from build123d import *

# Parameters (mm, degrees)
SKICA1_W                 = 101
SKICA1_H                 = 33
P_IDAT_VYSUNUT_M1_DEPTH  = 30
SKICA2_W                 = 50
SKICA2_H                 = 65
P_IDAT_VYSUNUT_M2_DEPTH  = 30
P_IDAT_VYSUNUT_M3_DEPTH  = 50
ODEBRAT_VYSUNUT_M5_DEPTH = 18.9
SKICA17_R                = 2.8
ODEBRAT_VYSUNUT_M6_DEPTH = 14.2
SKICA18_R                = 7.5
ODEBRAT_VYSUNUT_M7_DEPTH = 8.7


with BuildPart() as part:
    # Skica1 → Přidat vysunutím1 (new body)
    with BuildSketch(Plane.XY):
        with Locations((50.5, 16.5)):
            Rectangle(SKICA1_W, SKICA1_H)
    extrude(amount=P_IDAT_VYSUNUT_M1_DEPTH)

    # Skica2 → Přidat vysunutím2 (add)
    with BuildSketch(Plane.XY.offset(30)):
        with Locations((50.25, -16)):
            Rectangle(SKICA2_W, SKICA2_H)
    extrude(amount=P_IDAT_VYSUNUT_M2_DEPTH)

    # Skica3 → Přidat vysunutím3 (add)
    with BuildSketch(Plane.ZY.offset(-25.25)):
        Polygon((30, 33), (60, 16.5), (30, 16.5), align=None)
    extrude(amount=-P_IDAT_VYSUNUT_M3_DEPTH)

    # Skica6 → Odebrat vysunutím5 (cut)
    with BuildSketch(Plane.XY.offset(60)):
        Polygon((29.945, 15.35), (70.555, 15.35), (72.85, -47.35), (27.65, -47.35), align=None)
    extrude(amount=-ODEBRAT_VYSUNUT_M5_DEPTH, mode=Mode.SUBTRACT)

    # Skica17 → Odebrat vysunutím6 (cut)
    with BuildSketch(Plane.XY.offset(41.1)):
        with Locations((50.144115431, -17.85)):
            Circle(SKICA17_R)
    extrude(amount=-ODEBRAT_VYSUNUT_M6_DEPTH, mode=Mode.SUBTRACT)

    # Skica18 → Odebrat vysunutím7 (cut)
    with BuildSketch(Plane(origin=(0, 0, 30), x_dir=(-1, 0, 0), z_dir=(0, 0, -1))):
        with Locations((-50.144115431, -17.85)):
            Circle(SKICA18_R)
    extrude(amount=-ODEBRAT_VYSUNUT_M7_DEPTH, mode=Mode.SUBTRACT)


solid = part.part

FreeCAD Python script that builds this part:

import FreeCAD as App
import Part
import Sketcher
Q = App.Units.Quantity


def add_polygon(sketch, points):
    """Adds a closed chain of lines whose ends are joined by coincident constraints."""
    first, n = sketch.GeometryCount, len(points)
    for a, b in zip(points, points[1:] + points[:1]):
        sketch.addGeometry(Part.LineSegment(App.Vector(*a, 0), App.Vector(*b, 0)), False)
    for i in range(n):
        sketch.addConstraint(Sketcher.Constraint("Coincident", first + i, 2, first + (i + 1) % n, 1))

doc = App.newDocument("Part")
body = doc.addObject("PartDesign::Body", "Body")

sketch1 = body.newObject("Sketcher::SketchObject", "Sketch")
sketch1.AttachmentSupport = (doc.getObject("XY_Plane"), [""])
sketch1.MapMode = "FlatFace"
add_polygon(sketch1, [(0, 33), (0, 0), (101, 0), (101, 33)])
sketch1.addConstraint(Sketcher.Constraint("Vertical", 0))
sketch1.addConstraint(Sketcher.Constraint("Horizontal", 1))
sketch1.addConstraint(Sketcher.Constraint("Vertical", 2))
sketch1.addConstraint(Sketcher.Constraint("Horizontal", 3))
sketch1.addConstraint(Sketcher.Constraint("Coincident", 0, 2, -1, 1))
sketch1.addConstraint(Sketcher.Constraint("DistanceX", 1, 1, 1, 2, Q("101 mm")))
sketch1.addConstraint(Sketcher.Constraint("DistanceY", 0, 2, 0, 1, Q("33 mm")))
pad1 = body.newObject("PartDesign::Pad", "Pad")
pad1.Profile = sketch1
pad1.Length = 30

sketch2 = body.newObject("Sketcher::SketchObject", "Sketch001")
sketch2.AttachmentSupport = (doc.getObject("XY_Plane"), [""])
sketch2.MapMode = "FlatFace"
sketch2.AttachmentOffset = App.Placement(App.Vector(0, 0, 30), App.Rotation())
add_polygon(sketch2, [(25, 16), (25, -48), (75, -48), (75, 16)])
sketch2.addConstraint(Sketcher.Constraint("Vertical", 0))
sketch2.addConstraint(Sketcher.Constraint("Horizontal", 1))
sketch2.addConstraint(Sketcher.Constraint("Vertical", 2))
sketch2.addConstraint(Sketcher.Constraint("Horizontal", 3))
sketch2.addConstraint(Sketcher.Constraint("DistanceX", 1, 1, 1, 2, Q("50 mm")))
sketch2.addConstraint(Sketcher.Constraint("DistanceY", 0, 2, 0, 1, Q("65 mm")))
sketch2.addConstraint(Sketcher.Constraint("DistanceY", 0, 2, -1, 1, Q("48.5 mm")))
sketch2.addConstraint(Sketcher.Constraint("DistanceX", -1, 1, 0, 2, Q("25.25 mm")))
pad2 = body.newObject("PartDesign::Pad", "Pad001")
pad2.Profile = sketch2
pad2.Length = 30

sketch3 = body.newObject("Sketcher::SketchObject", "Sketch002")
sketch3.AttachmentSupport = (doc.getObject("YZ_Plane"), [""])
sketch3.MapMode = "FlatFace"
sketch3.AttachmentOffset = App.Placement(App.Vector(0, 0, 25.25), App.Rotation())
add_polygon(sketch3, [(16, 60), (33, 30), (16, 30)])
sketch3.addConstraint(Sketcher.Constraint("Horizontal", 1))
sketch3.addConstraint(Sketcher.Constraint("Vertical", 2))
sketch3.addConstraint(Sketcher.Constraint("DistanceY", 2, 1, 2, 2, Q("30 mm")))
sketch3.addConstraint(Sketcher.Constraint("DistanceX", 1, 2, 1, 1, Q("16.5 mm")))
sketch3.addConstraint(Sketcher.Constraint("DistanceX", -1, 1, 0, 2, Q("33 mm")))
sketch3.addConstraint(Sketcher.Constraint("DistanceY", -1, 1, 0, 2, Q("30 mm")))
pad3 = body.newObject("PartDesign::Pad", "Pad002")
pad3.Profile = sketch3
pad3.Length = 50

sketch4 = body.newObject("Sketcher::SketchObject", "Sketch003")
sketch4.AttachmentSupport = (doc.getObject("XY_Plane"), [""])
sketch4.MapMode = "FlatFace"
sketch4.AttachmentOffset = App.Placement(App.Vector(0, 0, 60), App.Rotation())
add_polygon(sketch4, [(71, 15), (30, 15), (28, -47), (73, -47)])
sketch4.addConstraint(Sketcher.Constraint("Horizontal", 0))
sketch4.addConstraint(Sketcher.Constraint("Horizontal", 2))
sketch4.addConstraint(Sketcher.Constraint("Equal", 1, 3))
sketch4.addConstraint(Sketcher.Constraint("DistanceX", 2, 1, 2, 2, Q("45.2 mm")))
sketch4.addConstraint(Sketcher.Constraint("DistanceX", 0, 2, 0, 1, Q("40.61 mm")))
sketch4.addConstraint(Sketcher.Constraint("DistanceY", 1, 2, 0, 2, Q("62.7 mm")))
sketch4.addConstraint(Sketcher.Constraint("DistanceY", -1, 1, 0, 2, Q("15.35 mm")))
sketch4.addConstraint(Sketcher.Constraint("DistanceX", -1, 1, 1, 2, Q("27.65 mm")))
pocket1 = body.newObject("PartDesign::Pocket", "Pocket")
pocket1.Profile = sketch4
pocket1.Length = 18.9

sketch5 = body.newObject("Sketcher::SketchObject", "Sketch004")
sketch5.AttachmentSupport = (doc.getObject("XY_Plane"), [""])
sketch5.MapMode = "FlatFace"
sketch5.AttachmentOffset = App.Placement(App.Vector(0, 0, 41.1), App.Rotation())
sketch5.addGeometry(Part.Circle(App.Vector(50.1, -17.9, 0), App.Vector(0, 0, 1), 2.8), False)
sketch5.addConstraint(Sketcher.Constraint("Diameter", 0, Q("5.6 mm")))
sketch5.addConstraint(Sketcher.Constraint("DistanceY", 0, 3, -1, 1, Q("17.85 mm")))
sketch5.addConstraint(Sketcher.Constraint("DistanceX", -1, 1, 0, 3, Q("50.144115 mm")))
pocket2 = body.newObject("PartDesign::Pocket", "Pocket001")
pocket2.Profile = sketch5
pocket2.Length = 14.2

sketch6 = body.newObject("Sketcher::SketchObject", "Sketch005")
sketch6.AttachmentSupport = (doc.getObject("XY_Plane"), [""])
sketch6.MapMode = "FlatFace"
sketch6.AttachmentOffset = App.Placement(App.Vector(0, 0, 30), App.Rotation())
sketch6.addGeometry(Part.Circle(App.Vector(50, -18, 0), App.Vector(0, 0, 1), 8), False)
sketch6.addConstraint(Sketcher.Constraint("Diameter", 0, Q("15 mm")))
sketch6.addConstraint(Sketcher.Constraint("DistanceY", 0, 3, -1, 1, Q("17.85 mm")))
sketch6.addConstraint(Sketcher.Constraint("DistanceX", -1, 1, 0, 3, Q("50.144115 mm")))
pocket3 = body.newObject("PartDesign::Pocket", "Pocket002")
pocket3.Profile = sketch6
pocket3.Length = 8.7
pocket3.Reversed = True

doc.recompute()
